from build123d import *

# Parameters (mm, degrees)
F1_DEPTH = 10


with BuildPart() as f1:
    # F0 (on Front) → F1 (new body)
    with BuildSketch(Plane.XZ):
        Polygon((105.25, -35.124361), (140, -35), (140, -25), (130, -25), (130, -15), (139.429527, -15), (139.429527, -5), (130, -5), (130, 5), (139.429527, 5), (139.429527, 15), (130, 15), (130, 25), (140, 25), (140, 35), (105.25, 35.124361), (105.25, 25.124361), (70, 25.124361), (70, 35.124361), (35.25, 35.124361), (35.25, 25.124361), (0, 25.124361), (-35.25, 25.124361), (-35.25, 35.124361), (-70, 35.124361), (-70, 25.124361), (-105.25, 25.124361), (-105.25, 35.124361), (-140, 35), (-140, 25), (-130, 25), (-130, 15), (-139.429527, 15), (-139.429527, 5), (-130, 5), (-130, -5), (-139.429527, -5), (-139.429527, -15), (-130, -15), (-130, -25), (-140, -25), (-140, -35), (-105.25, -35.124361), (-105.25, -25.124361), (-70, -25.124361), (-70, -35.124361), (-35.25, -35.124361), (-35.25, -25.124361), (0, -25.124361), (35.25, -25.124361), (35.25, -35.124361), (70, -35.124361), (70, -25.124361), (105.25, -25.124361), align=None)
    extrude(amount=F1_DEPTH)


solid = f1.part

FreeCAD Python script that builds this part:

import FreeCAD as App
import Part
import Sketcher
from FreeCAD import Vector
Q = App.Units.Quantity

doc = App.newDocument("Part")
body = doc.addObject("PartDesign::Body", "Body")

# Sketch on XZ plane
sketch1 = body.newObject("Sketcher::SketchObject", "Sketch")
sketch1.AttachmentSupport = (doc.getObject("XZ_Plane"), [""])
sketch1.MapMode = "FlatFace"
sketch1.addGeometry([
    Part.LineSegment(Vector(105, -35, 0), Vector(140, -35, 0)),  # 0
    Part.LineSegment(Vector(140, -35, 0), Vector(140, -25, 0)),  # 1
    Part.LineSegment(Vector(140, -25, 0), Vector(130, -25, 0)),  # 2
    Part.LineSegment(Vector(130, -25, 0), Vector(130, -15, 0)),  # 3
    Part.LineSegment(Vector(130, -15, 0), Vector(139, -15, 0)),  # 4
    Part.LineSegment(Vector(139, -15, 0), Vector(139, -5, 0)),  # 5
    Part.LineSegment(Vector(139, -5, 0), Vector(130, -5, 0)),  # 6
    Part.LineSegment(Vector(130, -5, 0), Vector(130, 5, 0)),  # 7
    Part.LineSegment(Vector(130, 5, 0), Vector(139, 5, 0)),  # 8
    Part.LineSegment(Vector(139, 5, 0), Vector(139, 15, 0)),  # 9
    Part.LineSegment(Vector(139, 15, 0), Vector(130, 15, 0)),  # 10
    Part.LineSegment(Vector(130, 15, 0), Vector(130, 25, 0)),  # 11
    Part.LineSegment(Vector(130, 25, 0), Vector(140, 25, 0)),  # 12
    Part.LineSegment(Vector(140, 25, 0), Vector(140, 35, 0)),  # 13
    Part.LineSegment(Vector(140, 35, 0), Vector(105, 35, 0)),  # 14
    Part.LineSegment(Vector(105, 35, 0), Vector(105, 25, 0)),  # 15
    Part.LineSegment(Vector(105, 25, 0), Vector(70, 25, 0)),  # 16
    Part.LineSegment(Vector(70, 25, 0), Vector(70, 35, 0)),  # 17
    Part.LineSegment(Vector(70, 35, 0), Vector(35, 35, 0)),  # 18
    Part.LineSegment(Vector(35, 35, 0), Vector(35, 25, 0)),  # 19
    Part.LineSegment(Vector(35, 25, 0), Vector(-35, 25, 0)),  # 20
    Part.LineSegment(Vector(-35, 25, 0), Vector(-35, 35, 0)),  # 21
    Part.LineSegment(Vector(-35, 35, 0), Vector(-70, 35, 0)),  # 22
    Part.LineSegment(Vector(-70, 35, 0), Vector(-70, 25, 0)),  # 23
    Part.LineSegment(Vector(-70, 25, 0), Vector(-105, 25, 0)),  # 24
    Part.LineSegment(Vector(-105, 25, 0), Vector(-105, 35, 0)),  # 25
    Part.LineSegment(Vector(-105, 35, 0), Vector(-140, 35, 0)),  # 26
    Part.LineSegment(Vector(-140, 35, 0), Vector(-140, 25, 0)),  # 27
    Part.LineSegment(Vector(-140, 25, 0), Vector(-130, 25, 0)),  # 28
    Part.LineSegment(Vector(-130, 25, 0), Vector(-130, 15, 0)),  # 29
    Part.LineSegment(Vector(-130, 15, 0), Vector(-139, 15, 0)),  # 30
    Part.LineSegment(Vector(-139, 15, 0), Vector(-139, 5, 0)),  # 31
    Part.LineSegment(Vector(-139, 5, 0), Vector(-130, 5, 0)),  # 32
    Part.LineSegment(Vector(-130, 5, 0), Vector(-130, -5, 0)),  # 33
    Part.LineSegment(Vector(-130, -5, 0), Vector(-139, -5, 0)),  # 34
    Part.LineSegment(Vector(-139, -5, 0), Vector(-139, -15, 0)),  # 35
    Part.LineSegment(Vector(-139, -15, 0), Vector(-130, -15, 0)),  # 36
    Part.LineSegment(Vector(-130, -15, 0), Vector(-130, -25, 0)),  # 37
    Part.LineSegment(Vector(-130, -25, 0), Vector(-140, -25, 0)),  # 38
    Part.LineSegment(Vector(-140, -25, 0), Vector(-140, -35, 0)),  # 39
    Part.LineSegment(Vector(-140, -35, 0), Vector(-105, -35, 0)),  # 40
    Part.LineSegment(Vector(-105, -35, 0), Vector(-105, -25, 0)),  # 41
    Part.LineSegment(Vector(-105, -25, 0), Vector(-70, -25, 0)),  # 42
    Part.LineSegment(Vector(-70, -25, 0), Vector(-70, -35, 0)),  # 43
    Part.LineSegment(Vector(-70, -35, 0), Vector(-35, -35, 0)),  # 44
    Part.LineSegment(Vector(-35, -35, 0), Vector(-35, -25, 0)),  # 45
    Part.LineSegment(Vector(-35, -25, 0), Vector(35, -25, 0)),  # 46
    Part.LineSegment(Vector(35, -25, 0), Vector(35, -35, 0)),  # 47
    Part.LineSegment(Vector(35, -35, 0), Vector(70, -35, 0)),  # 48
    Part.LineSegment(Vector(70, -35, 0), Vector(70, -25, 0)),  # 49
    Part.LineSegment(Vector(70, -25, 0), Vector(105, -25, 0)),  # 50
    Part.LineSegment(Vector(105, -25, 0), Vector(105, -35, 0)),  # 51
], False)
sketch1.addConstraint([
    Sketcher.Constraint("Coincident", 0, 2, 1, 1),
    Sketcher.Constraint("Coincident", 1, 2, 2, 1),
    Sketcher.Constraint("Coincident", 2, 2, 3, 1),
    Sketcher.Constraint("Coincident", 3, 2, 4, 1),
    Sketcher.Constraint("Coincident", 4, 2, 5, 1),
    Sketcher.Constraint("Coincident", 5, 2, 6, 1),
    Sketcher.Constraint("Coincident", 6, 2, 7, 1),
    Sketcher.Constraint("Coincident", 7, 2, 8, 1),
    Sketcher.Constraint("Coincident", 8, 2, 9, 1),
    Sketcher.Constraint("Coincident", 9, 2, 10, 1),
    Sketcher.Constraint("Coincident", 10, 2, 11, 1),
    Sketcher.Constraint("Coincident", 11, 2, 12, 1),
    Sketcher.Constraint("Coincident", 12, 2, 13, 1),
    Sketcher.Constraint("Coincident", 13, 2, 14, 1),
    Sketcher.Constraint("Coincident", 14, 2, 15, 1),
    Sketcher.Constraint("Coincident", 15, 2, 16, 1),
    Sketcher.Constraint("Coincident", 16, 2, 17, 1),
    Sketcher.Constraint("Coincident", 17, 2, 18, 1),
    Sketcher.Constraint("Coincident", 18, 2, 19, 1),
    Sketcher.Constraint("Coincident", 19, 2, 20, 1),
    Sketcher.Constraint("Coincident", 20, 2, 21, 1),
    Sketcher.Constraint("Coincident", 21, 2, 22, 1),
    Sketcher.Constraint("Coincident", 22, 2, 23, 1),
    Sketcher.Constraint("Coincident", 23, 2, 24, 1),
    Sketcher.Constraint("Coincident", 24, 2, 25, 1),
    Sketcher.Constraint("Coincident", 25, 2, 26, 1),
    Sketcher.Constraint("Coincident", 26, 2, 27, 1),
    Sketcher.Constraint("Coincident", 27, 2, 28, 1),
    Sketcher.Constraint("Coincident", 28, 2, 29, 1),
    Sketcher.Constraint("Coincident", 29, 2, 30, 1),
    Sketcher.Constraint("Coincident", 30, 2, 31, 1),
    Sketcher.Constraint("Coincident", 31, 2, 32, 1),
    Sketcher.Constraint("Coincident", 32, 2, 33, 1),
    Sketcher.Constraint("Coincident", 33, 2, 34, 1),
    Sketcher.Constraint("Coincident", 34, 2, 35, 1),
    Sketcher.Constraint("Coincident", 35, 2, 36, 1),
    Sketcher.Constraint("Coincident", 36, 2, 37, 1),
    Sketcher.Constraint("Coincident", 37, 2, 38, 1),
    Sketcher.Constraint("Coincident", 38, 2, 39, 1),
    Sketcher.Constraint("Coincident", 39, 2, 40, 1),
    Sketcher.Constraint("Coincident", 40, 2, 41, 1),
    Sketcher.Constraint("Coincident", 41, 2, 42, 1),
    Sketcher.Constraint("Coincident", 42, 2, 43, 1),
    Sketcher.Constraint("Coincident", 43, 2, 44, 1),
    Sketcher.Constraint("Coincident", 44, 2, 45, 1),
    Sketcher.Constraint("Coincident", 45, 2, 46, 1),
    Sketcher.Constraint("Coincident", 46, 2, 47, 1),
    Sketcher.Constraint("Coincident", 47, 2, 48, 1),
    Sketcher.Constraint("Coincident", 48, 2, 49, 1),
    Sketcher.Constraint("Coincident", 49, 2, 50, 1),
    Sketcher.Constraint("Coincident", 50, 2, 51, 1),
    Sketcher.Constraint("Coincident", 51, 2, 0, 1),
    Sketcher.Constraint("Vertical", 1),
    Sketcher.Constraint("Horizontal", 2),
    Sketcher.Constraint("Vertical", 3),
    Sketcher.Constraint("Horizontal", 4),
    Sketcher.Constraint("Vertical", 5),
    Sketcher.Constraint("Horizontal", 6),
    Sketcher.Constraint("Vertical", 7),
    Sketcher.Constraint("Horizontal", 8),
    Sketcher.Constraint("Vertical", 9),
    Sketcher.Constraint("Horizontal", 10),
    Sketcher.Constraint("Vertical", 11),
    Sketcher.Constraint("Horizontal", 12),
    Sketcher.Constraint("Vertical", 13),
    Sketcher.Constraint("Vertical", 15),
    Sketcher.Constraint("Horizontal", 16),
    Sketcher.Constraint("Vertical", 17),
    Sketcher.Constraint("Horizontal", 18),
    Sketcher.Constraint("Vertical", 19),
    Sketcher.Constraint("Horizontal", 20),
    Sketcher.Constraint("Vertical", 21),
    Sketcher.Constraint("Horizontal", 22),
    Sketcher.Constraint("Vertical", 23),
    Sketcher.Constraint("Horizontal", 24),
    Sketcher.Constraint("Vertical", 25),
    Sketcher.Constraint("Vertical", 27),
    Sketcher.Constraint("Horizontal", 28),
    Sketcher.Constraint("Vertical", 29),
    Sketcher.Constraint("Horizontal", 30),
    Sketcher.Constraint("Vertical", 31),
    Sketcher.Constraint("Horizontal", 32),
    Sketcher.Constraint("Vertical", 33),
    Sketcher.Constraint("Horizontal", 34),
    Sketcher.Constraint("Vertical", 35),
    Sketcher.Constraint("Horizontal", 36),
    Sketcher.Constraint("Vertical", 37),
    Sketcher.Constraint("Horizontal", 38),
    Sketcher.Constraint("Vertical", 39),
    Sketcher.Constraint("Vertical", 41),
    Sketcher.Constraint("Horizontal", 42),
    Sketcher.Constraint("Vertical", 43),
    Sketcher.Constraint("Horizontal", 44),
    Sketcher.Constraint("Vertical", 45),
    Sketcher.Constraint("Horizontal", 46),
    Sketcher.Constraint("Vertical", 47),
    Sketcher.Constraint("Horizontal", 48),
    Sketcher.Constraint("Vertical", 49),
    Sketcher.Constraint("Horizontal", 50),
    Sketcher.Constraint("Vertical", 51),
    Sketcher.Constraint("Symmetric", 0, 2, 26, 2, -1, 1),
    Sketcher.Constraint("Symmetric", 2, 2, 28, 2, -1, 1),
    Sketcher.Constraint("Symmetric", 4, 2, 30, 2, -1, 1),
    Sketcher.Constraint("Symmetric", 6, 2, 32, 2, -1, 1),
    Sketcher.Constraint("Symmetric", 8, 2, 34, 2, -1, 1),
    Sketcher.Constraint("Symmetric", 10, 2, 36, 2, -1, 1),
    Sketcher.Constraint("Symmetric", 12, 2, 38, 2, -1, 1),
    Sketcher.Constraint("Symmetric", 14, 2, 40, 2, -1, 1),
    Sketcher.Constraint("Symmetric", 16, 2, 42, 2, -1, 1),
    Sketcher.Constraint("Symmetric", 18, 2, 44, 2, -1, 1),
    Sketcher.Constraint("Symmetric", 20, 2, 46, 2, -1, 1),
    Sketcher.Constraint("Symmetric", 22, 2, 48, 2, -1, 1),
    Sketcher.Constraint("Symmetric", 24, 2, 50, 2, -1, 1),
    Sketcher.Constraint("Symmetric", 18, 2, 21, 2, -2),
    Sketcher.Constraint("Symmetric", 16, 2, 23, 2, -2),
    Sketcher.Constraint("Symmetric", 14, 2, 25, 2, -2),
    Sketcher.Constraint("Symmetric", 13, 2, 26, 2, -2),
    Sketcher.Constraint("Symmetric", 11, 2, 28, 2, -2),
    Sketcher.Constraint("Symmetric", 9, 2, 30, 2, -2),
    Sketcher.Constraint("Parallel", 0, 26),
    Sketcher.Constraint("Parallel", 14, 40),
    Sketcher.Constraint("Horizontal", 14, 2, 17, 2),
    Sketcher.Constraint("Horizontal", 16, 2, 19, 2),
    Sketcher.Constraint("Horizontal", 8, 2, 31, 2),
    Sketcher.Constraint("Vertical", 3, 2, 6, 2),
    Sketcher.Constraint("Equal", 38, 1),
    Sketcher.Constraint("Equal", 1, 3),
    Sketcher.Constraint("Equal", 3, 5),
    Sketcher.Constraint("Equal", 5, 7),
    Sketcher.Constraint("Equal", 13, 15),
    Sketcher.Constraint("DistanceX", 2, 2, 2, 1, Q("10 mm")),
    Sketcher.Constraint("DistanceX", 20, 2, 20, 1, Q("70.5 mm")),
    Sketcher.Constraint("DistanceX", -1, 1, 0, 2, Q("140 mm")),
    Sketcher.Constraint("DistanceX", -1, 1, 16, 2, Q("70 mm")),
    Sketcher.Constraint("DistanceX", 18, 2, 14, 2, Q("70 mm")),
    Sketcher.Constraint("DistanceX", 4, 1, 4, 2, Q("9.429527 mm")),
    Sketcher.Constraint("DistanceY", -1, 1, 14, 2, Q("35.124361 mm")),
])
pad1 = body.newObject("PartDesign::Pad", "Pad")
pad1.Profile = sketch1
pad1.Length = 10

doc.recompute()
